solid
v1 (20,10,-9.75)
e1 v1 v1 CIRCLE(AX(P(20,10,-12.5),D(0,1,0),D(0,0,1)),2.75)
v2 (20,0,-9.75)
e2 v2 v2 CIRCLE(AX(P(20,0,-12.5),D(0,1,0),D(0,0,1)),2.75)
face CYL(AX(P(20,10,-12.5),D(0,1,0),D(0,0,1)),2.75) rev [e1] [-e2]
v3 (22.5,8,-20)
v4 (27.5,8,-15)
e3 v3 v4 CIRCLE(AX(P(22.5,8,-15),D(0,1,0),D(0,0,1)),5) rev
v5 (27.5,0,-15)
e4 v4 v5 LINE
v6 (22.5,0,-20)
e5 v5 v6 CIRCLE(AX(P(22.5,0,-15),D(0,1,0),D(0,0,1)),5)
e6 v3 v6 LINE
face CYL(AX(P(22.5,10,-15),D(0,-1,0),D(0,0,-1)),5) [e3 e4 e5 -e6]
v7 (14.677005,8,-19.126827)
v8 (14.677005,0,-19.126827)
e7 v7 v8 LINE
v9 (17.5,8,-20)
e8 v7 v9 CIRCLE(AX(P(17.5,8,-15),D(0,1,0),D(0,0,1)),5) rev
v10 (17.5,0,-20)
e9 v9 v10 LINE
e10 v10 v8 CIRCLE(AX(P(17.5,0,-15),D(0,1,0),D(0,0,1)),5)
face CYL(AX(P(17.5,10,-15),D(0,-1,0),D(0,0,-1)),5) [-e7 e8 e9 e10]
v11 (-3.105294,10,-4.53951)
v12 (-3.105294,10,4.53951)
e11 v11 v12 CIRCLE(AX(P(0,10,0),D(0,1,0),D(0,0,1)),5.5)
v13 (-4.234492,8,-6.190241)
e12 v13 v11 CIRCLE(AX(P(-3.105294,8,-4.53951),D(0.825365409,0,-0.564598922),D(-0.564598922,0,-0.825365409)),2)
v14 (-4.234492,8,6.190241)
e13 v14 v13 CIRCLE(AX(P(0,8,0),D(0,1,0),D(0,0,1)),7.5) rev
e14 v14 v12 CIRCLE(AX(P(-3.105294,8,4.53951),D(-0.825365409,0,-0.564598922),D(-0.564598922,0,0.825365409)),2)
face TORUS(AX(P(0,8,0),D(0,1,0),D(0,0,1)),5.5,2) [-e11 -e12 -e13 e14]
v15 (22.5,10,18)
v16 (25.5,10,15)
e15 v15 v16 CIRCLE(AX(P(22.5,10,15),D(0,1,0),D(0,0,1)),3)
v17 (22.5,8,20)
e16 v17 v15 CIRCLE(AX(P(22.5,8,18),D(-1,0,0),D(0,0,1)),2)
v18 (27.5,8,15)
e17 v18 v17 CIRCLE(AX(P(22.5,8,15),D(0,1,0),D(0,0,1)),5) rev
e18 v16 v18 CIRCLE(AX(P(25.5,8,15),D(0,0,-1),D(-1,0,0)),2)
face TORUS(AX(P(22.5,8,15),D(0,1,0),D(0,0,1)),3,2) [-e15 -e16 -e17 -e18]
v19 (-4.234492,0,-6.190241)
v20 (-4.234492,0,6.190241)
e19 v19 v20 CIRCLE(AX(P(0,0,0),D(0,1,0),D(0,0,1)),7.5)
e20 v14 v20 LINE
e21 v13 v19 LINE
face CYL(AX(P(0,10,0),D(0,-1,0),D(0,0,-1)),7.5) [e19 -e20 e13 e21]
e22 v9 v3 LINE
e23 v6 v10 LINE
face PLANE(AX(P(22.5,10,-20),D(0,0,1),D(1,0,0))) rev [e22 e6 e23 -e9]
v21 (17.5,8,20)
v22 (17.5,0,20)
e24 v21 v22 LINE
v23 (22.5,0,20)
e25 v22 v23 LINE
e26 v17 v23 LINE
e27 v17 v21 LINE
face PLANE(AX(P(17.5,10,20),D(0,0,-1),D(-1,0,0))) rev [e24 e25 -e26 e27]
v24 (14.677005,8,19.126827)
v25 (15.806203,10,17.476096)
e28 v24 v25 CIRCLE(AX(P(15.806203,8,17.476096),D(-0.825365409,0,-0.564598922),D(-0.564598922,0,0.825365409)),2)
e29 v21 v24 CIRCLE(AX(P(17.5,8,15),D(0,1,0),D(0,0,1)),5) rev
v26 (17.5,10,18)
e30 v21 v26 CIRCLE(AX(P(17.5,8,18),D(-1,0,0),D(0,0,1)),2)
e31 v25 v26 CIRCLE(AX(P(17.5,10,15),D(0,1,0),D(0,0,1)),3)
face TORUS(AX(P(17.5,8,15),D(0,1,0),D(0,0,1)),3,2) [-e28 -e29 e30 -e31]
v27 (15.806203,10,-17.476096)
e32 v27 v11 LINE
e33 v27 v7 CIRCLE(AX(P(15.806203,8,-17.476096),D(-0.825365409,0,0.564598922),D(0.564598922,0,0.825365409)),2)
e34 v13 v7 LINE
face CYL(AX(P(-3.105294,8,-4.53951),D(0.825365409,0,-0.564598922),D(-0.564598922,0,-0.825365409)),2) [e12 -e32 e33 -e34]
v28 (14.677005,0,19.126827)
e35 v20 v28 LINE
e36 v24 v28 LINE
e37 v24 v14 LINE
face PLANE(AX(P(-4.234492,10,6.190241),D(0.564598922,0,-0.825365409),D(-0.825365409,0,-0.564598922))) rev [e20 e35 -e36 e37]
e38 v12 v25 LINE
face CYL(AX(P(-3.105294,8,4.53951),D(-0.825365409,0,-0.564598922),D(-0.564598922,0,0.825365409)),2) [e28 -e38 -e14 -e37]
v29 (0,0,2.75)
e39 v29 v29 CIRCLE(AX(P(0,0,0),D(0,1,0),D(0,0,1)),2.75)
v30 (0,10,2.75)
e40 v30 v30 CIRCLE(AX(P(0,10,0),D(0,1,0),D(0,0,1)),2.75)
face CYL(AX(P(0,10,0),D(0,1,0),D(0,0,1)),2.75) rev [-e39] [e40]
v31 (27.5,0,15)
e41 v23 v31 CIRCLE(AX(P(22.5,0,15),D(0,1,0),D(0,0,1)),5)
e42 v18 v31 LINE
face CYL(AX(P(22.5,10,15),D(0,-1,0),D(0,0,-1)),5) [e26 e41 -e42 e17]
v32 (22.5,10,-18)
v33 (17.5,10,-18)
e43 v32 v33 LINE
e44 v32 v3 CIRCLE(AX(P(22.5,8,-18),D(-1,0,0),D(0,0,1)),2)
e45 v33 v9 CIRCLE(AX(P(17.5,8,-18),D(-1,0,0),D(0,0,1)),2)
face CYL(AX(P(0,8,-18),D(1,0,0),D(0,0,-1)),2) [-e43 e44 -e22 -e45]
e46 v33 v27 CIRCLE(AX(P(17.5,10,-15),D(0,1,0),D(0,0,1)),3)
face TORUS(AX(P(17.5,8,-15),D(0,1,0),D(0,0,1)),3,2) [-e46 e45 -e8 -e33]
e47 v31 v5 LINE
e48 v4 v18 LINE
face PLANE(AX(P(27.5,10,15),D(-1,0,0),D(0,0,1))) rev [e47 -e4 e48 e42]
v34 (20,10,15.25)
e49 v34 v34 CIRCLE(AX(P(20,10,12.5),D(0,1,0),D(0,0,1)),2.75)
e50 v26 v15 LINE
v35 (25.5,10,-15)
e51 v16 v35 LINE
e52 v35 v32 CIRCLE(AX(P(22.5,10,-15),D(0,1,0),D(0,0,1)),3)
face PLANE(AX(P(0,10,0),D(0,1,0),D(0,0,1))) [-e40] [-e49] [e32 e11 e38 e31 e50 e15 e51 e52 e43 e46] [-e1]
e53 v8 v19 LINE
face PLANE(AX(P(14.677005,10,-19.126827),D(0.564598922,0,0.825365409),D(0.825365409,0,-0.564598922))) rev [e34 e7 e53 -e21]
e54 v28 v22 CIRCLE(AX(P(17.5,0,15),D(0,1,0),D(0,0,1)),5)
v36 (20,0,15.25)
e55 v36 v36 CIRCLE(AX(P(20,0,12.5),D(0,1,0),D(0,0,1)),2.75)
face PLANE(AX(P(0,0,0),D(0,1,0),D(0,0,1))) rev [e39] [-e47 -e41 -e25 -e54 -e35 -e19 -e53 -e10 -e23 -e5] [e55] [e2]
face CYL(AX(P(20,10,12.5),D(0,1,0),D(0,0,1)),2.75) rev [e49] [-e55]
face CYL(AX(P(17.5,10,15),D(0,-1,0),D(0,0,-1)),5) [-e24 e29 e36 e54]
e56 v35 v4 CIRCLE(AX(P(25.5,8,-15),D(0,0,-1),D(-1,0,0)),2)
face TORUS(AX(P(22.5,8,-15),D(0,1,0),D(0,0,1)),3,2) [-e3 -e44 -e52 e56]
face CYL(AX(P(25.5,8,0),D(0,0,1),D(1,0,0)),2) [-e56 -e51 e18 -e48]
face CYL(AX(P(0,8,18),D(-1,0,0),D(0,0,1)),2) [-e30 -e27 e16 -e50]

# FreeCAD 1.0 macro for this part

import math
import FreeCAD as App
import Part
import Sketcher

V = App.Vector
Q = App.Units.Quantity


def edges_at(feature, points):
    """Names of the edges that pass closest to the given points."""
    edges = feature.Shape.Edges
    near = lambda p: min(range(len(edges)), key=lambda i: edges[i].distToShape(Part.Vertex(*p))[0])
    return sorted({f"Edge{near(p) + 1}" for p in points})

doc = App.newDocument("Part")
body = doc.addObject("PartDesign::Body", "Body")

# Sketch on XZ plane
sketch1 = body.newObject("Sketcher::SketchObject", "Sketch")
sketch1.AttachmentSupport = (doc.getObject("XZ_Plane"), [""])
sketch1.MapMode = "FlatFace"
sketch1.addGeometry(Part.LineSegment(V(-4.2, 6.2, 0), V(14.7, 19.1, 0)), False)
sketch1.addGeometry(Part.ArcOfCircle(Part.Circle(V(17.5, 15, 0), V(0, 0, 1), 5), math.radians(90), math.radians(124)), False)
sketch1.addGeometry(Part.LineSegment(V(17.5, 20, 0), V(22.5, 20, 0)), False)
sketch1.addGeometry(Part.ArcOfCircle(Part.Circle(V(22.5, 15, 0), V(0, 0, 1), 5), math.radians(0), math.radians(90)), False)
sketch1.addGeometry(Part.LineSegment(V(27.5, 15, 0), V(27.5, -15, 0)), False)
sketch1.addGeometry(Part.ArcOfCircle(Part.Circle(V(22.5, -15, 0), V(0, 0, 1), 5), math.radians(-90), math.radians(0)), False)
sketch1.addGeometry(Part.LineSegment(V(22.5, -20, 0), V(17.5, -20, 0)), False)
sketch1.addGeometry(Part.ArcOfCircle(Part.Circle(V(17.5, -15, 0), V(0, 0, 1), 5), math.radians(-124), math.radians(-90)), False)
sketch1.addGeometry(Part.LineSegment(V(14.7, -19.1, 0), V(-4.2, -6.2, 0)), False)
sketch1.addGeometry(Part.ArcOfCircle(Part.Circle(V(0, 0, 0), V(0, 0, 1), 7.5), math.radians(124), math.radians(236)), False)
sketch1.addConstraint(Sketcher.Constraint("Tangent", 0, 2, 1, 2))
sketch1.addConstraint(Sketcher.Constraint("Tangent", 1, 1, 2, 1))
sketch1.addConstraint(Sketcher.Constraint("Tangent", 2, 2, 3, 2))
sketch1.addConstraint(Sketcher.Constraint("Tangent", 3, 1, 4, 1))
sketch1.addConstraint(Sketcher.Constraint("Tangent", 4, 2, 5, 2))
sketch1.addConstraint(Sketcher.Constraint("Tangent", 5, 1, 6, 1))
sketch1.addConstraint(Sketcher.Constraint("Tangent", 6, 2, 7, 2))
sketch1.addConstraint(Sketcher.Constraint("Tangent", 7, 1, 8, 1))
sketch1.addConstraint(Sketcher.Constraint("Tangent", 8, 2, 9, 2))
sketch1.addConstraint(Sketcher.Constraint("Tangent", 9, 1, 0, 1))
sketch1.addConstraint(Sketcher.Constraint("Horizontal", 2))
sketch1.addConstraint(Sketcher.Constraint("Vertical", 4))
sketch1.addConstraint(Sketcher.Constraint("Horizontal", 6))
sketch1.addConstraint(Sketcher.Constraint("Coincident", 9, 3, -1, 1))
sketch1.addConstraint(Sketcher.Constraint("Equal", 1, 3))
sketch1.addConstraint(Sketcher.Constraint("Equal", 3, 5))
sketch1.addConstraint(Sketcher.Constraint("Equal", 5, 7))
sketch1.addConstraint(Sketcher.Constraint("Symmetric", 1, 3, 7, 3, -1))
sketch1.addConstraint(Sketcher.Constraint("Radius", 1, Q("5 mm")))
sketch1.addConstraint(Sketcher.Constraint("Radius", 9, Q("7.5 mm")))
sketch1.addConstraint(Sketcher.Constraint("DistanceX", 2, 1, 2, 2, Q("5 mm")))
sketch1.addConstraint(Sketcher.Constraint("DistanceY", 4, 2, 4, 1, Q("30 mm")))
sketch1.addConstraint(Sketcher.Constraint("DistanceX", -1, 1, 1, 3, Q("17.5 mm")))
pad1 = body.newObject("PartDesign::Pad", "Pad")
pad1.Profile = sketch1
pad1.Length = 10
pad1.Reversed = True

# Sketch on XZ plane
sketch2 = body.newObject("Sketcher::SketchObject", "Sketch001")
sketch2.AttachmentSupport = (doc.getObject("XZ_Plane"), [""])
sketch2.MapMode = "FlatFace"
sketch2.AttachmentOffset = App.Placement(V(0, 0, -10), App.Rotation())
sketch2.addGeometry(Part.Circle(V(0, 0, 0), V(0, 0, 1), 2.8), False)
sketch2.addGeometry(Part.Circle(V(20, -12.5, 0), V(0, 0, 1), 2.8), False)
sketch2.addGeometry(Part.Circle(V(20, 12.5, 0), V(0, 0, 1), 2.8), False)
sketch2.addConstraint(Sketcher.Constraint("Coincident", 0, 3, -1, 1))
sketch2.addConstraint(Sketcher.Constraint("Equal", 0, 1))
sketch2.addConstraint(Sketcher.Constraint("Equal", 1, 2))
sketch2.addConstraint(Sketcher.Constraint("Symmetric", 1, 3, 2, 3, -1))
sketch2.addConstraint(Sketcher.Constraint("Diameter", 0, Q("5.5 mm")))
sketch2.addConstraint(Sketcher.Constraint("DistanceX", -1, 1, 1, 3, Q("20 mm")))
sketch2.addConstraint(Sketcher.Constraint("DistanceY", 1, 3, 2, 3, Q("25 mm")))
doc.recompute()
hole = body.newObject("PartDesign::Hole", "Hole")
hole.Profile = sketch2
hole.ThreadType = "None"
hole.Diameter = 5.5
hole.DepthType = "ThroughAll"
hole.Reversed = True
doc.recompute()

fillet = body.newObject("PartDesign::Fillet", "Fillet")
fillet.Base = (hole, edges_at(hole, [
    (16.023, 10, 19.777),
    (20, 10, 20),
    (26.036, 10, 18.536),
    (27.5, 10, 0),
    (26.036, 10, -18.536),
    (20, 10, -20),
    (16.023, 10, -19.777),
    (5.221, 10, -12.659),
    (-7.5, 10, 0),
    (5.221, 10, 12.659),
]))
fillet.Radius = 2

doc.recompute()
